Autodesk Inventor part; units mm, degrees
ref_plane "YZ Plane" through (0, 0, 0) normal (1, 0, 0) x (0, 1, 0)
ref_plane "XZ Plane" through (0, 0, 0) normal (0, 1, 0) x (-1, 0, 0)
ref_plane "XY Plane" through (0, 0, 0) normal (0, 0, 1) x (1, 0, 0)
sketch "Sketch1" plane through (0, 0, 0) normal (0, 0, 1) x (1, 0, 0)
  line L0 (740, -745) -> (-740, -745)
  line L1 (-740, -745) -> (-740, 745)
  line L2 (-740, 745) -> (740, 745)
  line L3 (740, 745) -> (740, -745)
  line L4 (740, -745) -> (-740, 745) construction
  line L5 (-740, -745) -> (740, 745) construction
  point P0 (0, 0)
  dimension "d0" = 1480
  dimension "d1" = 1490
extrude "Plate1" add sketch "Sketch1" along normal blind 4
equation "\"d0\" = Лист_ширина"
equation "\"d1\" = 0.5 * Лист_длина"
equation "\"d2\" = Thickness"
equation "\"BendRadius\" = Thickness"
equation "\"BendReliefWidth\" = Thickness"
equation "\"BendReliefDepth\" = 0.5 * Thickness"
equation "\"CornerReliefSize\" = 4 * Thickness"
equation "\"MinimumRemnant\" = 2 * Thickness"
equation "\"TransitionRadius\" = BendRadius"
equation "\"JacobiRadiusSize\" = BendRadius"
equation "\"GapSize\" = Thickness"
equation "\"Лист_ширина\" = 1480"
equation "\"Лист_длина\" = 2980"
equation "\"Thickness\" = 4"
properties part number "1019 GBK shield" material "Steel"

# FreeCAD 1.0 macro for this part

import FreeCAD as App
import Part
import Sketcher

V = App.Vector
Q = App.Units.Quantity


def add_polygon(sketch, points):
    """Adds a closed chain of lines whose ends are joined by coincident constraints."""
    first, n = sketch.GeometryCount, len(points)
    for a, b in zip(points, points[1:] + points[:1]):
        sketch.addGeometry(Part.LineSegment(App.Vector(*a, 0), App.Vector(*b, 0)), False)
    for i in range(n):
        sketch.addConstraint(Sketcher.Constraint("Coincident", first + i, 2, first + (i + 1) % n, 1))

doc = App.newDocument("Part")
body = doc.addObject("PartDesign::Body", "Body")

sketch1 = body.newObject("Sketcher::SketchObject", "Sketch")
sketch1.AttachmentSupport = (doc.getObject("XY_Plane"), [""])
sketch1.MapMode = "FlatFace"
add_polygon(sketch1, [(-740, -745), (740, -745), (740, 745), (-740, 745)])
sketch1.addConstraint([
    Sketcher.Constraint("Horizontal", 0),
    Sketcher.Constraint("Vertical", 1),
    Sketcher.Constraint("Horizontal", 2),
    Sketcher.Constraint("Vertical", 3),
    Sketcher.Constraint("Symmetric", 0, 2, 2, 2, -1, 1),
    Sketcher.Constraint("DistanceX", 0, 1, 0, 2, Q("1480 mm")),
    Sketcher.Constraint("DistanceY", 1, 1, 1, 2, Q("1490 mm")),
])
pad1 = body.newObject("PartDesign::Pad", "Pad")
pad1.Profile = sketch1
pad1.Length = 4

doc.recompute()
